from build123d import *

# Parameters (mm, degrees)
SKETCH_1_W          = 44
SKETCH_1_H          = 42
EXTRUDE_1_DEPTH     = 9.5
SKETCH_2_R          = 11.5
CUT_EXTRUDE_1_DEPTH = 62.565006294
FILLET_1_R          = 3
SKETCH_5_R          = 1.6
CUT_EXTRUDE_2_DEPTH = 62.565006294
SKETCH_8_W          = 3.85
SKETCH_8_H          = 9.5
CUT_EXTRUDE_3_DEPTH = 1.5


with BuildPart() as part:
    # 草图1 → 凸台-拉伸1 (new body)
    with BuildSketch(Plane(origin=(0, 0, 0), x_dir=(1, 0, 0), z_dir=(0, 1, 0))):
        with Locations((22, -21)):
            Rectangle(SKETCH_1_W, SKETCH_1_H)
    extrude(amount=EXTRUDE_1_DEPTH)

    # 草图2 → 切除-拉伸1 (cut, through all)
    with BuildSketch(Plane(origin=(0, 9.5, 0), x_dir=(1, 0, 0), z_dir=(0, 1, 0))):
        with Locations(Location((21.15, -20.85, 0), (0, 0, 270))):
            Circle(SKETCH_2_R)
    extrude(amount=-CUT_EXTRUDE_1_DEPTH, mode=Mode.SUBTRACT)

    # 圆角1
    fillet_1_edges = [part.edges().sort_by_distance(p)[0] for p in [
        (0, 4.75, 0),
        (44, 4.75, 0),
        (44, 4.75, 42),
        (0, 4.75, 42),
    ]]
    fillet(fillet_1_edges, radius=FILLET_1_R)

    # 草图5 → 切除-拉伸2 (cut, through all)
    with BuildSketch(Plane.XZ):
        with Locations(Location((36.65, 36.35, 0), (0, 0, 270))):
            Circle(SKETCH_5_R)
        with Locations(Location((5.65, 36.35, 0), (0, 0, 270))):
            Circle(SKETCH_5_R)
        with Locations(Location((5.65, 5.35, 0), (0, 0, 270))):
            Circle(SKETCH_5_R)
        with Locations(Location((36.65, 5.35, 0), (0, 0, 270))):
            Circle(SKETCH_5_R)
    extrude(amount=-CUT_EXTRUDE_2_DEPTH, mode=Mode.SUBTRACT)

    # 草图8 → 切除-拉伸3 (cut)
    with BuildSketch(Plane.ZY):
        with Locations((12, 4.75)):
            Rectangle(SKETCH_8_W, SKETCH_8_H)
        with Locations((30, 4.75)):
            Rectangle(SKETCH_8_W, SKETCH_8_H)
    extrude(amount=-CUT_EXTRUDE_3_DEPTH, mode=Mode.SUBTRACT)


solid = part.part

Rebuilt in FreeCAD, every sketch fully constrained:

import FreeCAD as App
import Part
import Sketcher
from FreeCAD import Vector


def edges_at(feature, points):
    """Names of the edges that pass closest to the given points."""
    edges = feature.Shape.Edges
    near = lambda p: min(range(len(edges)), key=lambda i: edges[i].distToShape(Part.Vertex(*p))[0])
    return sorted({f"Edge{near(p) + 1}" for p in points})

doc = App.newDocument("Part")
body = doc.addObject("PartDesign::Body", "Body")

# Sketch on XZ plane
sketch1 = body.newObject("Sketcher::SketchObject", "Sketch")
sketch1.AttachmentSupport = (doc.getObject("XZ_Plane"), [""])
sketch1.MapMode = "FlatFace"
sketch1.addGeometry([
    Part.LineSegment(Vector(0, 0, 0), Vector(0, 42, 0)),
    Part.LineSegment(Vector(0, 42, 0), Vector(44, 42, 0)),
    Part.LineSegment(Vector(44, 42, 0), Vector(44, 0, 0)),
    Part.LineSegment(Vector(44, 0, 0), Vector(0, 0, 0)),
], False)
sketch1.addConstraint([
    Sketcher.Constraint("Coincident", 0, 2, 1, 1),
    Sketcher.Constraint("Coincident", 1, 2, 2, 1),
    Sketcher.Constraint("Coincident", 2, 2, 3, 1),
    Sketcher.Constraint("Coincident", 3, 2, 0, 1),
    Sketcher.Constraint("Vertical", 0),
    Sketcher.Constraint("Horizontal", 1),
    Sketcher.Constraint("Vertical", 2),
    Sketcher.Constraint("Horizontal", 3),
    Sketcher.Constraint("Coincident", 3, 2, -1, 1),
    Sketcher.Constraint("DistanceX", 1, 1, 1, 2, 44.0),
    Sketcher.Constraint("DistanceY", 0, 1, 0, 2, 42.0),
])
pad1 = body.newObject("PartDesign::Pad", "Pad")
pad1.Profile = sketch1
pad1.Length = 9.5
pad1.Reversed = True

# Sketch on XZ plane
sketch2 = body.newObject("Sketcher::SketchObject", "Sketch001")
sketch2.AttachmentSupport = (doc.getObject("XZ_Plane"), [""])
sketch2.MapMode = "FlatFace"
sketch2.AttachmentOffset = App.Placement(Vector(0, 0, -9.5), App.Rotation())
sketch2.addGeometry(Part.Circle(Vector(21, 21, 0), Vector(0, 0, 1), 12), False)
sketch2.addConstraint([
    Sketcher.Constraint("Diameter", 0, 23.0),
    Sketcher.Constraint("DistanceX", -1, 1, 0, 3, 21.15),
    Sketcher.Constraint("DistanceY", -1, 1, 0, 3, 20.85),
])
pocket1 = body.newObject("PartDesign::Pocket", "Pocket")
pocket1.Profile = sketch2
pocket1.Type = "ThroughAll"
pocket1.Reversed = True
doc.recompute()

fillet = body.newObject("PartDesign::Fillet", "Fillet")
fillet.Base = (pocket1, edges_at(pocket1, [
    (0, 4.75, 0),
    (44, 4.75, 0),
    (44, 4.75, 42),
    (0, 4.75, 42),
]))
fillet.Radius = 3

# Sketch on XZ plane
sketch3 = body.newObject("Sketcher::SketchObject", "Sketch002")
sketch3.AttachmentSupport = (doc.getObject("XZ_Plane"), [""])
sketch3.MapMode = "FlatFace"
sketch3.addGeometry([
    Part.Circle(Vector(36.6, 36.4, 0), Vector(0, 0, 1), 1.6),
    Part.Circle(Vector(5.7, 36.4, 0), Vector(0, 0, 1), 1.6),
    Part.Circle(Vector(5.7, 5.3, 0), Vector(0, 0, 1), 1.6),
    Part.Circle(Vector(36.6, 5.3, 0), Vector(0, 0, 1), 1.6),
], False)
sketch3.addConstraint([
    Sketcher.Constraint("Equal", 0, 1),
    Sketcher.Constraint("Equal", 1, 2),
    Sketcher.Constraint("Equal", 2, 3),
    Sketcher.Constraint("Horizontal", 0, 3, 1, 3),
    Sketcher.Constraint("Horizontal", 2, 3, 3, 3),
    Sketcher.Constraint("Vertical", 1, 3, 2, 3),
    Sketcher.Constraint("Vertical", 0, 3, 3, 3),
    Sketcher.Constraint("Diameter", 0, 3.2),
    Sketcher.Constraint("DistanceX", 1, 3, 0, 3, 31.0),
    Sketcher.Constraint("DistanceY", 2, 3, 1, 3, 31.0),
    Sketcher.Constraint("DistanceX", -1, 1, 0, 3, 36.65),
    Sketcher.Constraint("DistanceY", -1, 1, 0, 3, 36.35),
])
pocket2 = body.newObject("PartDesign::Pocket", "Pocket001")
pocket2.Profile = sketch3
pocket2.Type = "ThroughAll"

# Sketch on YZ plane
sketch4 = body.newObject("Sketcher::SketchObject", "Sketch003")
sketch4.AttachmentSupport = (doc.getObject("YZ_Plane"), [""])
sketch4.MapMode = "FlatFace"
sketch4.addGeometry([
    Part.LineSegment(Vector(9.5, 10.1, 0), Vector(0, 10.1, 0)),  # 0
    Part.LineSegment(Vector(0, 10.1, 0), Vector(0, 13.9, 0)),  # 1
    Part.LineSegment(Vector(0, 13.9, 0), Vector(9.5, 13.9, 0)),  # 2
    Part.LineSegment(Vector(9.5, 13.9, 0), Vector(9.5, 10.1, 0)),  # 3
    Part.LineSegment(Vector(9.5, 28.1, 0), Vector(0, 28.1, 0)),  # 4
    Part.LineSegment(Vector(0, 28.1, 0), Vector(0, 31.9, 0)),  # 5
    Part.LineSegment(Vector(0, 31.9, 0), Vector(9.5, 31.9, 0)),  # 6
    Part.LineSegment(Vector(9.5, 31.9, 0), Vector(9.5, 28.1, 0)),  # 7
], False)
sketch4.addConstraint([
    Sketcher.Constraint("Coincident", 0, 2, 1, 1),
    Sketcher.Constraint("Coincident", 1, 2, 2, 1),
    Sketcher.Constraint("Coincident", 2, 2, 3, 1),
    Sketcher.Constraint("Coincident", 3, 2, 0, 1),
    Sketcher.Constraint("Coincident", 4, 2, 5, 1),
    Sketcher.Constraint("Coincident", 5, 2, 6, 1),
    Sketcher.Constraint("Coincident", 6, 2, 7, 1),
    Sketcher.Constraint("Coincident", 7, 2, 4, 1),
    Sketcher.Constraint("Horizontal", 0),
    Sketcher.Constraint("Vertical", 1),
    Sketcher.Constraint("Horizontal", 2),
    Sketcher.Constraint("Vertical", 3),
    Sketcher.Constraint("Horizontal", 4),
    Sketcher.Constraint("Vertical", 5),
    Sketcher.Constraint("Horizontal", 6),
    Sketcher.Constraint("Vertical", 7),
    Sketcher.Constraint("PointOnObject", 0, 2, -2),
    Sketcher.Constraint("PointOnObject", 4, 2, -2),
    Sketcher.Constraint("Vertical", 3, 2, 6, 2),
    Sketcher.Constraint("Equal", 3, 5),
    Sketcher.Constraint("DistanceX", 0, 2, 0, 1, 9.5),
    Sketcher.Constraint("DistanceY", 0, 2, 4, 2, 18.0),
    Sketcher.Constraint("DistanceY", 1, 1, 1, 2, 3.85),
    Sketcher.Constraint("DistanceY", -1, 1, 0, 2, 10.075),
])
pocket3 = body.newObject("PartDesign::Pocket", "Pocket002")
pocket3.Profile = sketch4
pocket3.Length = 1.5
pocket3.Reversed = True

doc.recompute()
